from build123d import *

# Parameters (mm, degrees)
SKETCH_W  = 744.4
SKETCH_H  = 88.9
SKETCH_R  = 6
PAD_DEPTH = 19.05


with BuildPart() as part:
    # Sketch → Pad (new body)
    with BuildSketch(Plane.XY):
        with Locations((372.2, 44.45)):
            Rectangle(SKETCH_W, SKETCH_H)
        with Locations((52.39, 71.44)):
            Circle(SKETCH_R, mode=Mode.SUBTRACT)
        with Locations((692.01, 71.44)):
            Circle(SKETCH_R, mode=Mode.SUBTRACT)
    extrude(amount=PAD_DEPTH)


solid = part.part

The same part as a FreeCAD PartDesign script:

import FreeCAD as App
import Part
import Sketcher
from FreeCAD import Vector


def add_polygon(sketch, points):
    """Adds a closed chain of lines whose ends are joined by coincident constraints."""
    first, n = sketch.GeometryCount, len(points)
    for a, b in zip(points, points[1:] + points[:1]):
        sketch.addGeometry(Part.LineSegment(App.Vector(*a, 0), App.Vector(*b, 0)), False)
    for i in range(n):
        sketch.addConstraint(Sketcher.Constraint("Coincident", first + i, 2, first + (i + 1) % n, 1))

doc = App.newDocument("Part")
body = doc.addObject("PartDesign::Body", "Body")

sketch1 = doc.addObject("Sketcher::SketchObject", "Sketch")
body.addObject(sketch1)
sketch1.AttachmentSupport = (doc.XY_Plane, [""])
sketch1.MapMode = "FlatFace"
add_polygon(sketch1, [(0, 89), (0, 0), (744, 0), (744, 89)])
sketch1.addGeometry(Part.Circle(Vector(52, 71, 0), Vector(0, 0, 1), 6), False)
sketch1.addGeometry(Part.Circle(Vector(692, 71, 0), Vector(0, 0, 1), 6), False)
sketch1.addConstraint([
    Sketcher.Constraint("Vertical", 0),
    Sketcher.Constraint("Horizontal", 1),
    Sketcher.Constraint("Vertical", 2),
    Sketcher.Constraint("Horizontal", 3),
    Sketcher.Constraint("Coincident", 0, 2, -1, 1),
    Sketcher.Constraint("Equal", 4, 5),
    Sketcher.Constraint("Horizontal", 4, 3, 5, 3),
    Sketcher.Constraint("Diameter", 4, 12.0),
    Sketcher.Constraint("DistanceX", 1, 1, 1, 2, 744.4),
    Sketcher.Constraint("DistanceY", 0, 2, 0, 1, 88.9),
    Sketcher.Constraint("DistanceX", -1, 1, 4, 3, 52.39),
    Sketcher.Constraint("DistanceY", -1, 1, 4, 3, 71.44),
    Sketcher.Constraint("DistanceX", -1, 1, 5, 3, 692.01),
])
pad1 = doc.addObject("PartDesign::Pad", "Pad")
body.addObject(pad1)
pad1.Profile = sketch1
pad1.Length = 19.05

doc.recompute()
